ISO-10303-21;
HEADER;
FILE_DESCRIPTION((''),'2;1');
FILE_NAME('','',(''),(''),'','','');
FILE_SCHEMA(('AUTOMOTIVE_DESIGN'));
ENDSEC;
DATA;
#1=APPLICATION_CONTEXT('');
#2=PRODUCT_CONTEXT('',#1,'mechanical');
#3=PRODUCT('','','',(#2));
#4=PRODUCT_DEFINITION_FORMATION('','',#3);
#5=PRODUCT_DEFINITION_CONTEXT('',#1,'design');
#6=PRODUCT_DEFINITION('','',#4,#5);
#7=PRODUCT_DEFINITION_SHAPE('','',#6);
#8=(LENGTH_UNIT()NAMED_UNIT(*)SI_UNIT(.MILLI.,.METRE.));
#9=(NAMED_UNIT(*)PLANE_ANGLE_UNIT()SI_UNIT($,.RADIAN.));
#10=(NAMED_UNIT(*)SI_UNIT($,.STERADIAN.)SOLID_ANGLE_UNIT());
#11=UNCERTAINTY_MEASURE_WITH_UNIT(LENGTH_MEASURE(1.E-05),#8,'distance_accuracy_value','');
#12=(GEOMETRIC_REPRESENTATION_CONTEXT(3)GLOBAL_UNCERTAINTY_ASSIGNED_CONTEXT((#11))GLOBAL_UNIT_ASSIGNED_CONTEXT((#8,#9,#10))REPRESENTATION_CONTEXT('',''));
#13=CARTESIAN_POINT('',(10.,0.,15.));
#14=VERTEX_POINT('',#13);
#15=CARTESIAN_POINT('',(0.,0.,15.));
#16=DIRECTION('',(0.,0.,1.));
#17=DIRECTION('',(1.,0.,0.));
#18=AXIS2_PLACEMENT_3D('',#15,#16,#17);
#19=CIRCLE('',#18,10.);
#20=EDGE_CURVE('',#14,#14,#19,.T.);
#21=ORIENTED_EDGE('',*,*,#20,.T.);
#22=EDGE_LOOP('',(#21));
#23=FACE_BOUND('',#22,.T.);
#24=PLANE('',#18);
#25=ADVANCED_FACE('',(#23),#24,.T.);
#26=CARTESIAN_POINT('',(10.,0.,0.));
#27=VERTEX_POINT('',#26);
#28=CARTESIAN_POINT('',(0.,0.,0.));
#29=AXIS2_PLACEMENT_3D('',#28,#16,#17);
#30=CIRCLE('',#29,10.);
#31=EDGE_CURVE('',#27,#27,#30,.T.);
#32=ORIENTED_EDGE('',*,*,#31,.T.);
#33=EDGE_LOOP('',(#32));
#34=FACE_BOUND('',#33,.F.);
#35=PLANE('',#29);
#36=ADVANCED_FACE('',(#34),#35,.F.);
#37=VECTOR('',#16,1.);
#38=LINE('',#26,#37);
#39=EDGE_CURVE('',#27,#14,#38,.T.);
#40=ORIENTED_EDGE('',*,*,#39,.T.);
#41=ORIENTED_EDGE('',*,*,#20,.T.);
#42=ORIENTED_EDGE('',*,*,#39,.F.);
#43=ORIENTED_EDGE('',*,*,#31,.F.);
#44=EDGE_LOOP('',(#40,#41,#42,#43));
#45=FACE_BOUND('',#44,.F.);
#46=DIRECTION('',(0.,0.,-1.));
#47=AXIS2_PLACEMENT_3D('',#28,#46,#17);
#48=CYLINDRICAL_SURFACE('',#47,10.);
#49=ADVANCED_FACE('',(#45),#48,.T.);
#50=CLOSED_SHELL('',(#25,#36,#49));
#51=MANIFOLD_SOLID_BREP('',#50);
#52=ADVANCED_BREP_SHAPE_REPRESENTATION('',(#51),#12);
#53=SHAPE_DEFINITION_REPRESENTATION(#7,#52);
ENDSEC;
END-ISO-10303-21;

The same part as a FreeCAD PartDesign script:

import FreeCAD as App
import Part
import Sketcher

V = App.Vector

doc = App.newDocument("Part")
body = doc.addObject("PartDesign::Body", "Body")

# Sketch on XY plane
sketch1 = doc.addObject("Sketcher::SketchObject", "Sketch")
body.addObject(sketch1)
sketch1.AttachmentSupport = (doc.XY_Plane, [""])
sketch1.MapMode = "FlatFace"
sketch1.addGeometry(Part.Circle(V(0, 0, 0), V(0, 0, 1), 10), False)
sketch1.addConstraint(Sketcher.Constraint("Coincident", 0, 3, -1, 1))
sketch1.addConstraint(Sketcher.Constraint("Diameter", 0, 20.0))
pad1 = doc.addObject("PartDesign::Pad", "Pad")
body.addObject(pad1)
pad1.Profile = sketch1
pad1.Length = 15

doc.recompute()
